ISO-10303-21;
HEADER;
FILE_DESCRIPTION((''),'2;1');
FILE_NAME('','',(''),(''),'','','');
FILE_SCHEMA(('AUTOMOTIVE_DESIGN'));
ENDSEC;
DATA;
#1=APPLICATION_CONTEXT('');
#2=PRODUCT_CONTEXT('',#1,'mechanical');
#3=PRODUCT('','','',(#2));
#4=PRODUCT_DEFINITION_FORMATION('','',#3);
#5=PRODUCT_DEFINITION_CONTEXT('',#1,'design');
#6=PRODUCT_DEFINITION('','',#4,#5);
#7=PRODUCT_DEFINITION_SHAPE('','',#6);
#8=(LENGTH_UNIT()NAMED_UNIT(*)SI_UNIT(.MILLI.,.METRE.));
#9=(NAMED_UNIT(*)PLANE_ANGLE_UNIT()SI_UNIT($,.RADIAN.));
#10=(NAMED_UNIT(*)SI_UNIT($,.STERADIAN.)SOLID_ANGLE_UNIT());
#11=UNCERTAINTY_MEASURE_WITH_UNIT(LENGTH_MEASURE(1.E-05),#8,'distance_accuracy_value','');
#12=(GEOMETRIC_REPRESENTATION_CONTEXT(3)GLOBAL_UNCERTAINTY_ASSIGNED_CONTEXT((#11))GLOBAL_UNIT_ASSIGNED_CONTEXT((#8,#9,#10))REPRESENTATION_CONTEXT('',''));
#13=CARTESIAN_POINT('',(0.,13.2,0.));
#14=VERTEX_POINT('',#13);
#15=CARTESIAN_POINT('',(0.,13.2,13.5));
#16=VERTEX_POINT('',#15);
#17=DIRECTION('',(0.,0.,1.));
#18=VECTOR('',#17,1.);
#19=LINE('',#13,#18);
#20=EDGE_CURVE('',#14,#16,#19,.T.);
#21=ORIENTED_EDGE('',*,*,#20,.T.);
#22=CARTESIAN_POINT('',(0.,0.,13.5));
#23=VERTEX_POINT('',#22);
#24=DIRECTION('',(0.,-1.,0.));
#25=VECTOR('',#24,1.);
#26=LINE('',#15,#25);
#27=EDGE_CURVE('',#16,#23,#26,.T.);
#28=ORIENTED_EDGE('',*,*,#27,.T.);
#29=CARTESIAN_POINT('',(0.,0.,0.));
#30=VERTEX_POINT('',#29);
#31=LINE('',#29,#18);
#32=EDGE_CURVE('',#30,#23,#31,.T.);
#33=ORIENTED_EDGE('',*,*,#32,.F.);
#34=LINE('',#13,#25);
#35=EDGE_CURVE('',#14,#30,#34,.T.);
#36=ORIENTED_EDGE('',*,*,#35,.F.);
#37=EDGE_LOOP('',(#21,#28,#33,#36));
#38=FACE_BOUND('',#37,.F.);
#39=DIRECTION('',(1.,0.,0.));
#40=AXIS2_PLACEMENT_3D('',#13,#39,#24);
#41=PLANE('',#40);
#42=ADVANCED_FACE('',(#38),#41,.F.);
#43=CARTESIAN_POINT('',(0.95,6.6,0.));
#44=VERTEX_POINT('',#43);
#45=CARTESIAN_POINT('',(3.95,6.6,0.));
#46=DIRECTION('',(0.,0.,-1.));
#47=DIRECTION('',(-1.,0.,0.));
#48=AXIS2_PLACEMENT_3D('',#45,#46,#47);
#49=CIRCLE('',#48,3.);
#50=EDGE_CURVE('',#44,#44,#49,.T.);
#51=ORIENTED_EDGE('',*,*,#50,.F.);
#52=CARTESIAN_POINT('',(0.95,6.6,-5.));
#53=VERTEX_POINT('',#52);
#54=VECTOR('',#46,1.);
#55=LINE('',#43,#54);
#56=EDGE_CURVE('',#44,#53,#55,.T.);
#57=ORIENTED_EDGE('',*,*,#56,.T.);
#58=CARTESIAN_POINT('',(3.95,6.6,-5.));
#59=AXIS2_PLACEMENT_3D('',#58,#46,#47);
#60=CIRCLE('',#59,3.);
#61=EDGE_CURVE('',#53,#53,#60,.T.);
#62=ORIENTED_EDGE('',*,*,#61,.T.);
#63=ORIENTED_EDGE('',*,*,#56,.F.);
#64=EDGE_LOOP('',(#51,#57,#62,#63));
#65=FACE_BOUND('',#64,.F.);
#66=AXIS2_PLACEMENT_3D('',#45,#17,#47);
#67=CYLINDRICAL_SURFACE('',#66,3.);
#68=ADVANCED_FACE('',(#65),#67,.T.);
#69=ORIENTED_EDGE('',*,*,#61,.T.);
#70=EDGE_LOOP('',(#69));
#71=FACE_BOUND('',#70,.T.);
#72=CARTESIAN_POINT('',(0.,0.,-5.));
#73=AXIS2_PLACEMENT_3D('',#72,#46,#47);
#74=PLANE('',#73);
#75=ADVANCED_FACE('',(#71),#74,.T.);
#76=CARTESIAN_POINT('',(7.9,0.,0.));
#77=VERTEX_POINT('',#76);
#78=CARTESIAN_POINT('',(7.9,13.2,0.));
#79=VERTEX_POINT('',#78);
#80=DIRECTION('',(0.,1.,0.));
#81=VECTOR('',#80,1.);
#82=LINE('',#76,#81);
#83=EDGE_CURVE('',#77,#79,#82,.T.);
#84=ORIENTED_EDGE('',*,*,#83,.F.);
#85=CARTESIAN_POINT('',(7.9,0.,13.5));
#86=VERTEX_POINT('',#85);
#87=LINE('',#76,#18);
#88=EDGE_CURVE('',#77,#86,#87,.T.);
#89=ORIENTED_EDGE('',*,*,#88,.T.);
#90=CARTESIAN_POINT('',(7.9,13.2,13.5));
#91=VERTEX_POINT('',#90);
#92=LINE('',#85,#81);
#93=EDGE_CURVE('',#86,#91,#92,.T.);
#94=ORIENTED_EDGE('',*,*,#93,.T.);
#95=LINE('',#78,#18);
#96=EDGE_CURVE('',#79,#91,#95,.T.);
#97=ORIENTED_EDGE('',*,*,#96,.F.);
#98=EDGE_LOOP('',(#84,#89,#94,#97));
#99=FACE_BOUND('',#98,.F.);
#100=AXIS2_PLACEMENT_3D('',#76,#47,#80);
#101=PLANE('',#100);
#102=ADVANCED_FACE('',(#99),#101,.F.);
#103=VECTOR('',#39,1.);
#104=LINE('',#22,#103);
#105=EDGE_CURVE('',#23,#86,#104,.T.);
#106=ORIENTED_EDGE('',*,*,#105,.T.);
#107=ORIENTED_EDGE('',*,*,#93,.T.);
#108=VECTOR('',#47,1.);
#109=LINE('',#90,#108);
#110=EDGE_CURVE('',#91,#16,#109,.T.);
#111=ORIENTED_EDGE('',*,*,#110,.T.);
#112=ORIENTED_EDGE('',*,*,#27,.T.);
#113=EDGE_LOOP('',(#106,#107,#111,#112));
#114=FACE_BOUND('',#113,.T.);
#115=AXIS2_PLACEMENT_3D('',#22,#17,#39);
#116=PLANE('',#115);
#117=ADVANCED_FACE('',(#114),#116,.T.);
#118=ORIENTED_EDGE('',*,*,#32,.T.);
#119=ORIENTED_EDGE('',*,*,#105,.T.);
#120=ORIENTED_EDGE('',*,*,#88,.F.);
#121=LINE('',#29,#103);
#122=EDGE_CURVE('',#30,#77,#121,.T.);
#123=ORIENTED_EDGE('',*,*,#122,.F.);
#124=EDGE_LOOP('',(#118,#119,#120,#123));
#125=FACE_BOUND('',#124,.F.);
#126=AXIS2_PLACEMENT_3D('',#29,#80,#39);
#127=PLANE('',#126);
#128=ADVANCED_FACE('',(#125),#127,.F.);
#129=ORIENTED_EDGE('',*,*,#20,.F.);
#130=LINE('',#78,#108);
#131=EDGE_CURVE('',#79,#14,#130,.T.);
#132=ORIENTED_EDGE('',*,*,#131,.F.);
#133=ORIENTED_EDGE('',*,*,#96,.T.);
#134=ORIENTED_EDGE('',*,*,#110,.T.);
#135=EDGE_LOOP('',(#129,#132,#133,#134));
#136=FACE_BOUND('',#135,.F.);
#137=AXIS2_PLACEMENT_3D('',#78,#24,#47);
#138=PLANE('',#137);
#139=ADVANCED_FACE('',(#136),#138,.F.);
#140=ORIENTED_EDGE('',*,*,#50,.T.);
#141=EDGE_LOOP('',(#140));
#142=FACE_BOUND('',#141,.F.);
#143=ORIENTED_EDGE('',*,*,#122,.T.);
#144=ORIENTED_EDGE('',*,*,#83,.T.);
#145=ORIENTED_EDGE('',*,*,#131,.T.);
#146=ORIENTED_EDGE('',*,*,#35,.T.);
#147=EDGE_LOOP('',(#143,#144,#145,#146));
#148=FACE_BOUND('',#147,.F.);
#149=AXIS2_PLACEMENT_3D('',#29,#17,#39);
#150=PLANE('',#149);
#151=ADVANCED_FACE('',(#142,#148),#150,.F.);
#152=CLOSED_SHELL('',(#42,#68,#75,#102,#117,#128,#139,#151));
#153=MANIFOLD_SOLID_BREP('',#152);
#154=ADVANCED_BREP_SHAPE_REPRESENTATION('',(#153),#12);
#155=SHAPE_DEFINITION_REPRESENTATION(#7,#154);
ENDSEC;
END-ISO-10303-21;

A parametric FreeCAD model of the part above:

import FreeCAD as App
import Part
import Sketcher
from FreeCAD import Vector

doc = App.newDocument("Part")
body = doc.addObject("PartDesign::Body", "Body")

sketch1 = doc.addObject("Sketcher::SketchObject", "Sketch")
body.addObject(sketch1)
sketch1.AttachmentSupport = (doc.XY_Plane, [""])
sketch1.MapMode = "FlatFace"
sketch1.addGeometry([
    Part.LineSegment(Vector(0, 13, 0), Vector(0, 0, 0)),
    Part.LineSegment(Vector(0, 0, 0), Vector(8, 0, 0)),
    Part.LineSegment(Vector(8, 0, 0), Vector(8, 13, 0)),
    Part.LineSegment(Vector(8, 13, 0), Vector(0, 13, 0)),
], False)
sketch1.addConstraint([
    Sketcher.Constraint("Coincident", 0, 2, 1, 1),
    Sketcher.Constraint("Coincident", 1, 2, 2, 1),
    Sketcher.Constraint("Coincident", 2, 2, 3, 1),
    Sketcher.Constraint("Coincident", 3, 2, 0, 1),
    Sketcher.Constraint("Vertical", 0),
    Sketcher.Constraint("Horizontal", 1),
    Sketcher.Constraint("Vertical", 2),
    Sketcher.Constraint("Horizontal", 3),
    Sketcher.Constraint("Coincident", 0, 2, -1, 1),
    Sketcher.Constraint("DistanceX", 1, 1, 1, 2, 7.9),
    Sketcher.Constraint("DistanceY", 0, 2, 0, 1, 13.2),
])
pad1 = doc.addObject("PartDesign::Pad", "Pad")
body.addObject(pad1)
pad1.Profile = sketch1
pad1.Length = 13.5

sketch2 = doc.addObject("Sketcher::SketchObject", "Sketch001")
body.addObject(sketch2)
sketch2.AttachmentSupport = (doc.XY_Plane, [""])
sketch2.MapMode = "FlatFace"
sketch2.addGeometry(Part.Circle(Vector(4, 6.6, 0), Vector(0, 0, 1), 3), False)
sketch2.addConstraint([
    Sketcher.Constraint("Diameter", 0, 6.0),
    Sketcher.Constraint("DistanceY", -1, 1, 0, 3, 6.6),
    Sketcher.Constraint("DistanceX", -1, 1, 0, 3, 3.95),
])
pad2 = doc.addObject("PartDesign::Pad", "Pad001")
body.addObject(pad2)
pad2.Profile = sketch2
pad2.Length = 5
pad2.Reversed = True

doc.recompute()
